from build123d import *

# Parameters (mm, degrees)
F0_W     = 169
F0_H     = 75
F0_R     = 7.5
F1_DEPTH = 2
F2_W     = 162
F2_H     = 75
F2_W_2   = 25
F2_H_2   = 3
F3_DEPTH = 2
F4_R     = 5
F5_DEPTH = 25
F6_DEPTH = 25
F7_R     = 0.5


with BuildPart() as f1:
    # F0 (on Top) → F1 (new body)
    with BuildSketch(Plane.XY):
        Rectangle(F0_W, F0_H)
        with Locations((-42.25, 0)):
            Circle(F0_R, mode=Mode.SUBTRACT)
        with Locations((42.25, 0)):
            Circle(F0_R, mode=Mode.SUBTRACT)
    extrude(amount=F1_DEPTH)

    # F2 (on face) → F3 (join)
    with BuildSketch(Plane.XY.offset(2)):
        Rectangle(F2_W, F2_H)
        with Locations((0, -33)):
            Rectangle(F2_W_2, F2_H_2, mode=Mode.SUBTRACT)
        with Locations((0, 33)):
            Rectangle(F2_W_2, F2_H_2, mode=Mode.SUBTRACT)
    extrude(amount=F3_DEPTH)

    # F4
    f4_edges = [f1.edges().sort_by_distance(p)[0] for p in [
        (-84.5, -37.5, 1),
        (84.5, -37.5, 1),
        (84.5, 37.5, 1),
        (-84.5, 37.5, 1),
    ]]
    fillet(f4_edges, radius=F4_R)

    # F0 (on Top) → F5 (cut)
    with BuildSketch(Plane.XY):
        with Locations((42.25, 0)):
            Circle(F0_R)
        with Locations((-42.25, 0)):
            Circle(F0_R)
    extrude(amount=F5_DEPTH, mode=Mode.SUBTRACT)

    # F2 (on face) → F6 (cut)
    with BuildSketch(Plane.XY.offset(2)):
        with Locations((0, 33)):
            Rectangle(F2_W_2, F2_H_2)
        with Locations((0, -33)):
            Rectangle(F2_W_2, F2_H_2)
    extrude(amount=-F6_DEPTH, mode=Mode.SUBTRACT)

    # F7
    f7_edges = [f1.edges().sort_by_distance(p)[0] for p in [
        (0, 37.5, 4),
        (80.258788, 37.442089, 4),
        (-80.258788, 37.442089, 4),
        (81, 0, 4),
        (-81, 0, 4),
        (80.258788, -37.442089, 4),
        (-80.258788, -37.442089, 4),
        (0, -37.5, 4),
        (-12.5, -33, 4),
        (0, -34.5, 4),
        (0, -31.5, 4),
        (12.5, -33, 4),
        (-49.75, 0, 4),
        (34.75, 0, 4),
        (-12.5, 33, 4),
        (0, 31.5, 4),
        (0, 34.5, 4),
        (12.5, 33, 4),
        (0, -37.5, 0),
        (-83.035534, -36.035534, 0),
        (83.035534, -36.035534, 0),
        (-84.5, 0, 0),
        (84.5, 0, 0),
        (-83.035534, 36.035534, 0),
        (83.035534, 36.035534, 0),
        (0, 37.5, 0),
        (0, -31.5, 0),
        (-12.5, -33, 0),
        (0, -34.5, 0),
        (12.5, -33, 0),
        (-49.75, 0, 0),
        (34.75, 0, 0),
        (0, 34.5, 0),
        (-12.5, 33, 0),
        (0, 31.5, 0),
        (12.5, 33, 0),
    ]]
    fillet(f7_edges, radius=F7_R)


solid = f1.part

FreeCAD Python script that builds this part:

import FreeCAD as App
import Part
import Sketcher
from FreeCAD import Vector
Q = App.Units.Quantity


def edges_at(feature, points):
    """Names of the edges that pass closest to the given points."""
    edges = feature.Shape.Edges
    near = lambda p: min(range(len(edges)), key=lambda i: edges[i].distToShape(Part.Vertex(*p))[0])
    return sorted({f"Edge{near(p) + 1}" for p in points})

doc = App.newDocument("Part")
body = doc.addObject("PartDesign::Body", "Body")

# Sketch on XY plane
sketch1 = doc.addObject("Sketcher::SketchObject", "Sketch")
body.addObject(sketch1)
sketch1.AttachmentSupport = (doc.XY_Plane, [""])
sketch1.MapMode = "FlatFace"
sketch1.addGeometry(Part.LineSegment(Vector(-84.5, 37.5, 0), Vector(-84.5, -37.5, 0)), False)
sketch1.addGeometry(Part.LineSegment(Vector(-84.5, -37.5, 0), Vector(84.5, -37.5, 0)), False)
sketch1.addGeometry(Part.LineSegment(Vector(84.5, -37.5, 0), Vector(84.5, 37.5, 0)), False)
sketch1.addGeometry(Part.LineSegment(Vector(84.5, 37.5, 0), Vector(-84.5, 37.5, 0)), False)
sketch1.addGeometry(Part.Circle(Vector(-42.25, 0, 0), Vector(0, 0, 1), 7.5), False)
sketch1.addGeometry(Part.Circle(Vector(42.25, 0, 0), Vector(0, 0, 1), 7.5), False)
sketch1.addConstraint(Sketcher.Constraint("Coincident", 0, 2, 1, 1))
sketch1.addConstraint(Sketcher.Constraint("Coincident", 1, 2, 2, 1))
sketch1.addConstraint(Sketcher.Constraint("Coincident", 2, 2, 3, 1))
sketch1.addConstraint(Sketcher.Constraint("Coincident", 3, 2, 0, 1))
sketch1.addConstraint(Sketcher.Constraint("Vertical", 0))
sketch1.addConstraint(Sketcher.Constraint("Horizontal", 1))
sketch1.addConstraint(Sketcher.Constraint("Vertical", 2))
sketch1.addConstraint(Sketcher.Constraint("Horizontal", 3))
sketch1.addConstraint(Sketcher.Constraint("Equal", 4, 5))
sketch1.addConstraint(Sketcher.Constraint("Symmetric", 4, 3, 5, 3, -1, 1))
sketch1.addConstraint(Sketcher.Constraint("Symmetric", 0, 2, 2, 2, -1, 1))
sketch1.addConstraint(Sketcher.Constraint("PointOnObject", 4, 3, -1))
sketch1.addConstraint(Sketcher.Constraint("Diameter", 4, Q("15 mm")))
sketch1.addConstraint(Sketcher.Constraint("DistanceX", 1, 1, 1, 2, Q("169 mm")))
sketch1.addConstraint(Sketcher.Constraint("DistanceY", 0, 2, 0, 1, Q("75 mm")))
sketch1.addConstraint(Sketcher.Constraint("DistanceX", 4, 3, 5, 3, Q("84.5 mm")))
pad1 = doc.addObject("PartDesign::Pad", "Pad")
body.addObject(pad1)
pad1.Profile = sketch1
pad1.Length = 2

# Sketch on XY plane
sketch2 = doc.addObject("Sketcher::SketchObject", "Sketch001")
body.addObject(sketch2)
sketch2.AttachmentSupport = (doc.XY_Plane, [""])
sketch2.MapMode = "FlatFace"
sketch2.AttachmentOffset = App.Placement(Vector(0, 0, 2), App.Rotation())
sketch2.addGeometry(Part.LineSegment(Vector(-81, 37.5, 0), Vector(-81, -37.5, 0)), False)
sketch2.addGeometry(Part.LineSegment(Vector(-81, -37.5, 0), Vector(81, -37.5, 0)), False)
sketch2.addGeometry(Part.LineSegment(Vector(81, -37.5, 0), Vector(81, 37.5, 0)), False)
sketch2.addGeometry(Part.LineSegment(Vector(81, 37.5, 0), Vector(-81, 37.5, 0)), False)
sketch2.addGeometry(Part.LineSegment(Vector(12.5, -34.5, 0), Vector(-12.5, -34.5, 0)), False)
sketch2.addGeometry(Part.LineSegment(Vector(-12.5, -34.5, 0), Vector(-12.5, -31.5, 0)), False)
sketch2.addGeometry(Part.LineSegment(Vector(-12.5, -31.5, 0), Vector(12.5, -31.5, 0)), False)
sketch2.addGeometry(Part.LineSegment(Vector(12.5, -31.5, 0), Vector(12.5, -34.5, 0)), False)
sketch2.addGeometry(Part.LineSegment(Vector(12.5, 31.5, 0), Vector(-12.5, 31.5, 0)), False)
sketch2.addGeometry(Part.LineSegment(Vector(-12.5, 31.5, 0), Vector(-12.5, 34.5, 0)), False)
sketch2.addGeometry(Part.LineSegment(Vector(-12.5, 34.5, 0), Vector(12.5, 34.5, 0)), False)
sketch2.addGeometry(Part.LineSegment(Vector(12.5, 34.5, 0), Vector(12.5, 31.5, 0)), False)
sketch2.addConstraint(Sketcher.Constraint("Coincident", 0, 2, 1, 1))
sketch2.addConstraint(Sketcher.Constraint("Coincident", 1, 2, 2, 1))
sketch2.addConstraint(Sketcher.Constraint("Coincident", 2, 2, 3, 1))
sketch2.addConstraint(Sketcher.Constraint("Coincident", 3, 2, 0, 1))
sketch2.addConstraint(Sketcher.Constraint("Coincident", 4, 2, 5, 1))
sketch2.addConstraint(Sketcher.Constraint("Coincident", 5, 2, 6, 1))
sketch2.addConstraint(Sketcher.Constraint("Coincident", 6, 2, 7, 1))
sketch2.addConstraint(Sketcher.Constraint("Coincident", 7, 2, 4, 1))
sketch2.addConstraint(Sketcher.Constraint("Coincident", 8, 2, 9, 1))
sketch2.addConstraint(Sketcher.Constraint("Coincident", 9, 2, 10, 1))
sketch2.addConstraint(Sketcher.Constraint("Coincident", 10, 2, 11, 1))
sketch2.addConstraint(Sketcher.Constraint("Coincident", 11, 2, 8, 1))
sketch2.addConstraint(Sketcher.Constraint("Vertical", 0))
sketch2.addConstraint(Sketcher.Constraint("Horizontal", 1))
sketch2.addConstraint(Sketcher.Constraint("Vertical", 2))
sketch2.addConstraint(Sketcher.Constraint("Horizontal", 3))
sketch2.addConstraint(Sketcher.Constraint("Horizontal", 4))
sketch2.addConstraint(Sketcher.Constraint("Vertical", 5))
sketch2.addConstraint(Sketcher.Constraint("Horizontal", 6))
sketch2.addConstraint(Sketcher.Constraint("Vertical", 7))
sketch2.addConstraint(Sketcher.Constraint("Horizontal", 8))
sketch2.addConstraint(Sketcher.Constraint("Vertical", 9))
sketch2.addConstraint(Sketcher.Constraint("Horizontal", 10))
sketch2.addConstraint(Sketcher.Constraint("Vertical", 11))
sketch2.addConstraint(Sketcher.Constraint("Symmetric", 0, 2, 2, 2, -1, 1))
sketch2.addConstraint(Sketcher.Constraint("Symmetric", 6, 2, 8, 2, -1, 1))
sketch2.addConstraint(Sketcher.Constraint("Symmetric", 4, 2, 10, 2, -1, 1))
sketch2.addConstraint(Sketcher.Constraint("Vertical", 5, 2, 8, 2))
sketch2.addConstraint(Sketcher.Constraint("DistanceX", 1, 1, 1, 2, Q("162 mm")))
sketch2.addConstraint(Sketcher.Constraint("DistanceX", 4, 2, 4, 1, Q("25 mm")))
sketch2.addConstraint(Sketcher.Constraint("DistanceY", 0, 2, 0, 1, Q("75 mm")))
sketch2.addConstraint(Sketcher.Constraint("DistanceY", 5, 1, 5, 2, Q("3 mm")))
sketch2.addConstraint(Sketcher.Constraint("DistanceY", 0, 2, 4, 2, Q("3 mm")))
pad2 = doc.addObject("PartDesign::Pad", "Pad001")
body.addObject(pad2)
pad2.Profile = sketch2
pad2.Length = 2
doc.recompute()

fillet = doc.addObject("PartDesign::Fillet", "Fillet")
body.addObject(fillet)
fillet.Base = (pad2, edges_at(pad2, [
    (-84.5, -37.5, 1),
    (84.5, -37.5, 1),
    (84.5, 37.5, 1),
    (-84.5, 37.5, 1),
]))
fillet.Radius = 5

# Sketch on XY plane
sketch3 = doc.addObject("Sketcher::SketchObject", "Sketch002")
body.addObject(sketch3)
sketch3.AttachmentSupport = (doc.XY_Plane, [""])
sketch3.MapMode = "FlatFace"
sketch3.addGeometry(Part.Circle(Vector(42.25, 0, 0), Vector(0, 0, 1), 7.5), False)
sketch3.addGeometry(Part.Circle(Vector(-42.25, 0, 0), Vector(0, 0, 1), 7.5), False)
sketch3.addConstraint(Sketcher.Constraint("Equal", 0, 1))
sketch3.addConstraint(Sketcher.Constraint("Symmetric", 0, 3, 1, 3, -1, 1))
sketch3.addConstraint(Sketcher.Constraint("PointOnObject", 0, 3, -1))
sketch3.addConstraint(Sketcher.Constraint("Diameter", 0, Q("15 mm")))
sketch3.addConstraint(Sketcher.Constraint("DistanceX", 1, 3, 0, 3, Q("84.5 mm")))
pocket1 = doc.addObject("PartDesign::Pocket", "Pocket")
body.addObject(pocket1)
pocket1.Profile = sketch3
pocket1.Length = 25
pocket1.Reversed = True

# Sketch on XY plane
sketch4 = doc.addObject("Sketcher::SketchObject", "Sketch003")
body.addObject(sketch4)
sketch4.AttachmentSupport = (doc.XY_Plane, [""])
sketch4.MapMode = "FlatFace"
sketch4.AttachmentOffset = App.Placement(Vector(0, 0, 2), App.Rotation())
sketch4.addGeometry(Part.LineSegment(Vector(-12.5, 34.5, 0), Vector(-12.5, 31.5, 0)), False)
sketch4.addGeometry(Part.LineSegment(Vector(-12.5, 31.5, 0), Vector(12.5, 31.5, 0)), False)
sketch4.addGeometry(Part.LineSegment(Vector(12.5, 31.5, 0), Vector(12.5, 34.5, 0)), False)
sketch4.addGeometry(Part.LineSegment(Vector(12.5, 34.5, 0), Vector(-12.5, 34.5, 0)), False)
sketch4.addGeometry(Part.LineSegment(Vector(-12.5, -31.5, 0), Vector(-12.5, -34.5, 0)), False)
sketch4.addGeometry(Part.LineSegment(Vector(-12.5, -34.5, 0), Vector(12.5, -34.5, 0)), False)
sketch4.addGeometry(Part.LineSegment(Vector(12.5, -34.5, 0), Vector(12.5, -31.5, 0)), False)
sketch4.addGeometry(Part.LineSegment(Vector(12.5, -31.5, 0), Vector(-12.5, -31.5, 0)), False)
sketch4.addConstraint(Sketcher.Constraint("Coincident", 0, 2, 1, 1))
sketch4.addConstraint(Sketcher.Constraint("Coincident", 1, 2, 2, 1))
sketch4.addConstraint(Sketcher.Constraint("Coincident", 2, 2, 3, 1))
sketch4.addConstraint(Sketcher.Constraint("Coincident", 3, 2, 0, 1))
sketch4.addConstraint(Sketcher.Constraint("Coincident", 4, 2, 5, 1))
sketch4.addConstraint(Sketcher.Constraint("Coincident", 5, 2, 6, 1))
sketch4.addConstraint(Sketcher.Constraint("Coincident", 6, 2, 7, 1))
sketch4.addConstraint(Sketcher.Constraint("Coincident", 7, 2, 4, 1))
sketch4.addConstraint(Sketcher.Constraint("Vertical", 0))
sketch4.addConstraint(Sketcher.Constraint("Horizontal", 1))
sketch4.addConstraint(Sketcher.Constraint("Vertical", 2))
sketch4.addConstraint(Sketcher.Constraint("Horizontal", 3))
sketch4.addConstraint(Sketcher.Constraint("Vertical", 4))
sketch4.addConstraint(Sketcher.Constraint("Horizontal", 5))
sketch4.addConstraint(Sketcher.Constraint("Vertical", 6))
sketch4.addConstraint(Sketcher.Constraint("Horizontal", 7))
sketch4.addConstraint(Sketcher.Constraint("Symmetric", 2, 2, 4, 2, -1, 1))
sketch4.addConstraint(Sketcher.Constraint("Symmetric", 0, 2, 6, 2, -1, 1))
sketch4.addConstraint(Sketcher.Constraint("Vertical", 3, 2, 4, 2))
sketch4.addConstraint(Sketcher.Constraint("DistanceX", 1, 1, 1, 2, Q("25 mm")))
sketch4.addConstraint(Sketcher.Constraint("DistanceY", 0, 2, 0, 1, Q("3 mm")))
sketch4.addConstraint(Sketcher.Constraint("DistanceY", 4, 2, 0, 2, Q("66 mm")))
pocket2 = doc.addObject("PartDesign::Pocket", "Pocket001")
body.addObject(pocket2)
pocket2.Profile = sketch4
pocket2.Length = 25
doc.recompute()

fillet2 = doc.addObject("PartDesign::Fillet", "Fillet001")
body.addObject(fillet2)
fillet2.Base = (pocket2, edges_at(pocket2, [
    (0, 37.5, 4),
    (80.259, 37.442, 4),
    (-80.259, 37.442, 4),
    (81, 0, 4),
    (-81, 0, 4),
    (80.259, -37.442, 4),
    (-80.259, -37.442, 4),
    (0, -37.5, 4),
    (-12.5, -33, 4),
    (0, -34.5, 4),
    (0, -31.5, 4),
    (12.5, -33, 4),
    (-49.75, 0, 4),
    (34.75, 0, 4),
    (-12.5, 33, 4),
    (0, 31.5, 4),
    (0, 34.5, 4),
    (12.5, 33, 4),
    (0, -37.5, 0),
    (-83.036, -36.036, 0),
    (83.036, -36.036, 0),
    (-84.5, 0, 0),
    (84.5, 0, 0),
    (-83.036, 36.036, 0),
    (83.036, 36.036, 0),
    (0, 37.5, 0),
    (0, -31.5, 0),
    (-12.5, -33, 0),
    (0, -34.5, 0),
    (12.5, -33, 0),
    (-49.75, 0, 0),
    (34.75, 0, 0),
    (0, 34.5, 0),
    (-12.5, 33, 0),
    (0, 31.5, 0),
    (12.5, 33, 0),
]))
fillet2.Radius = 0.5

doc.recompute()
